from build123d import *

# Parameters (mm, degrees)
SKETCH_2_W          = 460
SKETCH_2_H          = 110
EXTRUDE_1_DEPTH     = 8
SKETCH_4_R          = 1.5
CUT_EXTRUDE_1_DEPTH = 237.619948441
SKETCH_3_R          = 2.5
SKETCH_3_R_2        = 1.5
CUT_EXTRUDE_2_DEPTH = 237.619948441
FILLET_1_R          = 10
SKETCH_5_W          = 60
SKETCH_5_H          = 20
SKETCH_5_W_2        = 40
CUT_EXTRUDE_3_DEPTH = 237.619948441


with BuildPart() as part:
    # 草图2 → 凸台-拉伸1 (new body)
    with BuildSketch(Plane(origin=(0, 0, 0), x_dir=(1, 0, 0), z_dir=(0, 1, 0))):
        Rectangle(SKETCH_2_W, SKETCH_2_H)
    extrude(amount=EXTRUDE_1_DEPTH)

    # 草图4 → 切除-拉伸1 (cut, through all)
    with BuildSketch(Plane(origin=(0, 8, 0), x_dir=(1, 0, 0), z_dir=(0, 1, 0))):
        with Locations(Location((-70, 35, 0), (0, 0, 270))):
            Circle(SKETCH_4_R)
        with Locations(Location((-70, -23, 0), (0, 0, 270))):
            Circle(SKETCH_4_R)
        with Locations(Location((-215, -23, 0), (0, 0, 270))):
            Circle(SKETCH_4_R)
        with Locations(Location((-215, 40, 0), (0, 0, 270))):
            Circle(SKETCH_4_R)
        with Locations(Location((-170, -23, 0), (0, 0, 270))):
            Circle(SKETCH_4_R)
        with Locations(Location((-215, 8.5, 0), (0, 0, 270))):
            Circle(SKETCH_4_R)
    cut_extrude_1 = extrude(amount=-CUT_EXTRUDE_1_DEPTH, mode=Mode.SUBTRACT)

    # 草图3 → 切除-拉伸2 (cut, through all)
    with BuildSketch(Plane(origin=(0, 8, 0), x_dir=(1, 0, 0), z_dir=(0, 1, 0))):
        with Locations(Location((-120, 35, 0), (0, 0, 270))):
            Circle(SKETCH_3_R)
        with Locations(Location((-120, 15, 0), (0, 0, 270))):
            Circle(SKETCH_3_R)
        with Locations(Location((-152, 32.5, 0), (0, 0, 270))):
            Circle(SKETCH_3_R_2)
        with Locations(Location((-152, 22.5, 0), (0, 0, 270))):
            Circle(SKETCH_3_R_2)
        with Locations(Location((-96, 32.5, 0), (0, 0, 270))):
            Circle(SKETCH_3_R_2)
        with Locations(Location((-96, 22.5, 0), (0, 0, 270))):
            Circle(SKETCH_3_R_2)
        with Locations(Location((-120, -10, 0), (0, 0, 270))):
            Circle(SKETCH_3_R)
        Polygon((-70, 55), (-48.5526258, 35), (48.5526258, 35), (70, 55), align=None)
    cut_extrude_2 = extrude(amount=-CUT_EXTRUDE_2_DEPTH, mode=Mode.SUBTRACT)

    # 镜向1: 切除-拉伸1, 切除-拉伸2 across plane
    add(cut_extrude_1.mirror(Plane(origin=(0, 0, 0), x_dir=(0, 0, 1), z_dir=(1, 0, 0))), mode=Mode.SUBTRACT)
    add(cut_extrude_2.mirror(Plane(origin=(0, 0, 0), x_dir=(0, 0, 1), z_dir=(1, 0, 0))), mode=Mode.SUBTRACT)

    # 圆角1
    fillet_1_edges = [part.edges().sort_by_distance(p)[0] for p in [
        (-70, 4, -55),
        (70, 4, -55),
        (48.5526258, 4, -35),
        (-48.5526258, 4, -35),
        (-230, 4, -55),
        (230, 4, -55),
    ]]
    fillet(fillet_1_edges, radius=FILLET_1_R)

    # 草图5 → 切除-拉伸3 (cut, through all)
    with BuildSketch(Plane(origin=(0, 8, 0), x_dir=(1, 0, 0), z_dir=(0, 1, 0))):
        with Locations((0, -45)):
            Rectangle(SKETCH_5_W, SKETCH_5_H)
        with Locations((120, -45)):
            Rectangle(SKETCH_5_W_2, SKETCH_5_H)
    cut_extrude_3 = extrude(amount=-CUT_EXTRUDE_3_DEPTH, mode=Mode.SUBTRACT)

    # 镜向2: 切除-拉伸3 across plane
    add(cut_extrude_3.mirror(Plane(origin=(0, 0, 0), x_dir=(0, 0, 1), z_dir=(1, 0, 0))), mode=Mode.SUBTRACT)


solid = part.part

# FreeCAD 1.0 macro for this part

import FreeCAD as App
import Part
import Sketcher

V = App.Vector
Q = App.Units.Quantity


def edges_at(feature, points):
    """Names of the edges that pass closest to the given points."""
    edges = feature.Shape.Edges
    near = lambda p: min(range(len(edges)), key=lambda i: edges[i].distToShape(Part.Vertex(*p))[0])
    return sorted({f"Edge{near(p) + 1}" for p in points})

doc = App.newDocument("Part")
body = doc.addObject("PartDesign::Body", "Body")

# Sketch on XZ plane
sketch1 = doc.addObject("Sketcher::SketchObject", "Sketch")
body.addObject(sketch1)
sketch1.AttachmentSupport = (doc.XZ_Plane, [""])
sketch1.MapMode = "FlatFace"
sketch1.addGeometry(Part.LineSegment(V(-230, -55, 0), V(-230, 55, 0)), False)
sketch1.addGeometry(Part.LineSegment(V(-230, 55, 0), V(230, 55, 0)), False)
sketch1.addGeometry(Part.LineSegment(V(230, 55, 0), V(230, -55, 0)), False)
sketch1.addGeometry(Part.LineSegment(V(230, -55, 0), V(-230, -55, 0)), False)
sketch1.addConstraint(Sketcher.Constraint("Coincident", 0, 2, 1, 1))
sketch1.addConstraint(Sketcher.Constraint("Coincident", 1, 2, 2, 1))
sketch1.addConstraint(Sketcher.Constraint("Coincident", 2, 2, 3, 1))
sketch1.addConstraint(Sketcher.Constraint("Coincident", 3, 2, 0, 1))
sketch1.addConstraint(Sketcher.Constraint("Vertical", 0))
sketch1.addConstraint(Sketcher.Constraint("Horizontal", 1))
sketch1.addConstraint(Sketcher.Constraint("Vertical", 2))
sketch1.addConstraint(Sketcher.Constraint("Horizontal", 3))
sketch1.addConstraint(Sketcher.Constraint("Symmetric", 0, 2, 2, 2, -1, 1))
sketch1.addConstraint(Sketcher.Constraint("DistanceX", 1, 1, 1, 2, Q("460 mm")))
sketch1.addConstraint(Sketcher.Constraint("DistanceY", 0, 1, 0, 2, Q("110 mm")))
pad1 = doc.addObject("PartDesign::Pad", "Pad")
body.addObject(pad1)
pad1.Profile = sketch1
pad1.Length = 8
pad1.Reversed = True

# Sketch on XZ plane
sketch2 = doc.addObject("Sketcher::SketchObject", "Sketch001")
body.addObject(sketch2)
sketch2.AttachmentSupport = (doc.XZ_Plane, [""])
sketch2.MapMode = "FlatFace"
sketch2.AttachmentOffset = App.Placement(V(0, 0, -8), App.Rotation())
sketch2.addGeometry(Part.Circle(V(-70, -35, 0), V(0, 0, 1), 1.5), False)
sketch2.addGeometry(Part.Circle(V(-70, 23, 0), V(0, 0, 1), 1.5), False)
sketch2.addGeometry(Part.Circle(V(-215, 23, 0), V(0, 0, 1), 1.5), False)
sketch2.addGeometry(Part.Circle(V(-215, -40, 0), V(0, 0, 1), 1.5), False)
sketch2.addGeometry(Part.Circle(V(-170, 23, 0), V(0, 0, 1), 1.5), False)
sketch2.addGeometry(Part.Circle(V(-215, -8.5, 0), V(0, 0, 1), 1.5), False)
sketch2.addConstraint(Sketcher.Constraint("Equal", 0, 1))
sketch2.addConstraint(Sketcher.Constraint("Equal", 1, 2))
sketch2.addConstraint(Sketcher.Constraint("Equal", 2, 3))
sketch2.addConstraint(Sketcher.Constraint("Equal", 3, 4))
sketch2.addConstraint(Sketcher.Constraint("Equal", 4, 5))
sketch2.addConstraint(Sketcher.Constraint("Horizontal", 1, 3, 2, 3))
sketch2.addConstraint(Sketcher.Constraint("Horizontal", 2, 3, 4, 3))
sketch2.addConstraint(Sketcher.Constraint("Vertical", 0, 3, 1, 3))
sketch2.addConstraint(Sketcher.Constraint("Vertical", 2, 3, 3, 3))
sketch2.addConstraint(Sketcher.Constraint("Vertical", 3, 3, 5, 3))
sketch2.addConstraint(Sketcher.Constraint("Diameter", 0, Q("3 mm")))
sketch2.addConstraint(Sketcher.Constraint("DistanceX", 0, 3, -1, 1, Q("70 mm")))
sketch2.addConstraint(Sketcher.Constraint("DistanceY", 0, 3, -1, 1, Q("35 mm")))
sketch2.addConstraint(Sketcher.Constraint("DistanceY", -1, 1, 1, 3, Q("23 mm")))
sketch2.addConstraint(Sketcher.Constraint("DistanceX", 2, 3, -1, 1, Q("215 mm")))
sketch2.addConstraint(Sketcher.Constraint("DistanceY", 3, 3, -1, 1, Q("40 mm")))
sketch2.addConstraint(Sketcher.Constraint("DistanceX", 4, 3, -1, 1, Q("170 mm")))
sketch2.addConstraint(Sketcher.Constraint("DistanceY", 5, 3, -1, 1, Q("8.5 mm")))
pocket1 = doc.addObject("PartDesign::Pocket", "Pocket")
body.addObject(pocket1)
pocket1.Profile = sketch2
pocket1.Type = "ThroughAll"
pocket1.Reversed = True

# Sketch on XZ plane
sketch3 = doc.addObject("Sketcher::SketchObject", "Sketch002")
body.addObject(sketch3)
sketch3.AttachmentSupport = (doc.XZ_Plane, [""])
sketch3.MapMode = "FlatFace"
sketch3.AttachmentOffset = App.Placement(V(0, 0, -8), App.Rotation())
sketch3.addGeometry(Part.Circle(V(-120, -35, 0), V(0, 0, 1), 2.5), False)
sketch3.addGeometry(Part.Circle(V(-120, -15, 0), V(0, 0, 1), 2.5), False)
sketch3.addGeometry(Part.Circle(V(-152, -32.5, 0), V(0, 0, 1), 1.5), False)
sketch3.addGeometry(Part.Circle(V(-152, -22.5, 0), V(0, 0, 1), 1.5), False)
sketch3.addGeometry(Part.Circle(V(-96, -32.5, 0), V(0, 0, 1), 1.5), False)
sketch3.addGeometry(Part.Circle(V(-96, -22.5, 0), V(0, 0, 1), 1.5), False)
sketch3.addGeometry(Part.Circle(V(-120, 10, 0), V(0, 0, 1), 2.5), False)
sketch3.addGeometry(Part.LineSegment(V(-70, -55, 0), V(-48.552626, -35, 0)), False)
sketch3.addGeometry(Part.LineSegment(V(-48.552626, -35, 0), V(48.552626, -35, 0)), False)
sketch3.addGeometry(Part.LineSegment(V(48.552626, -35, 0), V(70, -55, 0)), False)
sketch3.addGeometry(Part.LineSegment(V(70, -55, 0), V(-70, -55, 0)), False)
sketch3.addConstraint(Sketcher.Constraint("Coincident", 7, 2, 8, 1))
sketch3.addConstraint(Sketcher.Constraint("Coincident", 8, 2, 9, 1))
sketch3.addConstraint(Sketcher.Constraint("Coincident", 9, 2, 10, 1))
sketch3.addConstraint(Sketcher.Constraint("Coincident", 10, 2, 7, 1))
sketch3.addConstraint(Sketcher.Constraint("Horizontal", 8))
sketch3.addConstraint(Sketcher.Constraint("Horizontal", 10))
sketch3.addConstraint(Sketcher.Constraint("Equal", 0, 1))
sketch3.addConstraint(Sketcher.Constraint("Equal", 2, 3))
sketch3.addConstraint(Sketcher.Constraint("Equal", 3, 4))
sketch3.addConstraint(Sketcher.Constraint("Equal", 4, 5))
sketch3.addConstraint(Sketcher.Constraint("Equal", 1, 6))
sketch3.addConstraint(Sketcher.Constraint("Horizontal", 2, 3, 4, 3))
sketch3.addConstraint(Sketcher.Constraint("Horizontal", 3, 3, 5, 3))
sketch3.addConstraint(Sketcher.Constraint("Horizontal", 0, 3, 7, 2))
sketch3.addConstraint(Sketcher.Constraint("Vertical", 0, 3, 1, 3))
sketch3.addConstraint(Sketcher.Constraint("Vertical", 2, 3, 3, 3))
sketch3.addConstraint(Sketcher.Constraint("Vertical", 4, 3, 5, 3))
sketch3.addConstraint(Sketcher.Constraint("Vertical", 1, 3, 6, 3))
sketch3.addConstraint(Sketcher.Constraint("Equal", 7, 9))
sketch3.addConstraint(Sketcher.Constraint("Diameter", 0, Q("5 mm")))
sketch3.addConstraint(Sketcher.Constraint("Diameter", 2, Q("3 mm")))
sketch3.addConstraint(Sketcher.Constraint("DistanceX", 10, 2, 10, 1, Q("140 mm")))
sketch3.addConstraint(Sketcher.Constraint("Angle", 7, Q("43 deg")))
sketch3.addConstraint(Sketcher.Constraint("DistanceX", 0, 3, -1, 1, Q("120 mm")))
sketch3.addConstraint(Sketcher.Constraint("DistanceY", 0, 3, -1, 1, Q("35 mm")))
sketch3.addConstraint(Sketcher.Constraint("DistanceY", 1, 3, -1, 1, Q("15 mm")))
sketch3.addConstraint(Sketcher.Constraint("DistanceX", 2, 3, -1, 1, Q("152 mm")))
sketch3.addConstraint(Sketcher.Constraint("DistanceX", 4, 3, -1, 1, Q("96 mm")))
sketch3.addConstraint(Sketcher.Constraint("DistanceY", -1, 1, 6, 3, Q("10 mm")))
sketch3.addConstraint(Sketcher.Constraint("DistanceX", -1, 1, 9, 2, Q("70 mm")))
sketch3.addConstraint(Sketcher.Constraint("DistanceY", 9, 2, -1, 1, Q("55 mm")))
sketch3.addConstraint(Sketcher.Constraint("DistanceY", 2, 3, 3, 3, Q("10 mm")))
sketch3.addConstraint(Sketcher.Constraint("DistanceY", 2, 3, -1, 1, Q("32.5 mm")))
pocket2 = doc.addObject("PartDesign::Pocket", "Pocket001")
body.addObject(pocket2)
pocket2.Profile = sketch3
pocket2.Type = "ThroughAll"
pocket2.Reversed = True
doc.recompute()

mirrored = doc.addObject("PartDesign::Mirrored", "Mirrored")
body.addObject(mirrored)
mirrored.Originals = [pocket1, pocket2]
mirrored.MirrorPlane = (doc.YZ_Plane, [""])
body.Tip = mirrored
doc.recompute()

fillet = doc.addObject("PartDesign::Fillet", "Fillet")
body.addObject(fillet)
fillet.Base = (mirrored, edges_at(mirrored, [
    (-70, 4, -55),
    (70, 4, -55),
    (48.553, 4, -35),
    (-48.553, 4, -35),
    (-230, 4, -55),
    (230, 4, -55),
]))
fillet.Radius = 10

# Sketch on XZ plane
sketch4 = doc.addObject("Sketcher::SketchObject", "Sketch003")
body.addObject(sketch4)
sketch4.AttachmentSupport = (doc.XZ_Plane, [""])
sketch4.MapMode = "FlatFace"
sketch4.AttachmentOffset = App.Placement(V(0, 0, -8), App.Rotation())
sketch4.addGeometry(Part.LineSegment(V(-30, 35, 0), V(-30, 55, 0)), False)
sketch4.addGeometry(Part.LineSegment(V(-30, 55, 0), V(30, 55, 0)), False)
sketch4.addGeometry(Part.LineSegment(V(30, 55, 0), V(30, 35, 0)), False)
sketch4.addGeometry(Part.LineSegment(V(30, 35, 0), V(-30, 35, 0)), False)
sketch4.addGeometry(Part.LineSegment(V(100, 35, 0), V(100, 55, 0)), False)
sketch4.addGeometry(Part.LineSegment(V(100, 55, 0), V(140, 55, 0)), False)
sketch4.addGeometry(Part.LineSegment(V(140, 55, 0), V(140, 35, 0)), False)
sketch4.addGeometry(Part.LineSegment(V(140, 35, 0), V(100, 35, 0)), False)
sketch4.addConstraint(Sketcher.Constraint("Coincident", 0, 2, 1, 1))
sketch4.addConstraint(Sketcher.Constraint("Coincident", 1, 2, 2, 1))
sketch4.addConstraint(Sketcher.Constraint("Coincident", 2, 2, 3, 1))
sketch4.addConstraint(Sketcher.Constraint("Coincident", 3, 2, 0, 1))
sketch4.addConstraint(Sketcher.Constraint("Coincident", 4, 2, 5, 1))
sketch4.addConstraint(Sketcher.Constraint("Coincident", 5, 2, 6, 1))
sketch4.addConstraint(Sketcher.Constraint("Coincident", 6, 2, 7, 1))
sketch4.addConstraint(Sketcher.Constraint("Coincident", 7, 2, 4, 1))
sketch4.addConstraint(Sketcher.Constraint("Vertical", 0))
sketch4.addConstraint(Sketcher.Constraint("Horizontal", 1))
sketch4.addConstraint(Sketcher.Constraint("Vertical", 2))
sketch4.addConstraint(Sketcher.Constraint("Horizontal", 3))
sketch4.addConstraint(Sketcher.Constraint("Vertical", 4))
sketch4.addConstraint(Sketcher.Constraint("Horizontal", 5))
sketch4.addConstraint(Sketcher.Constraint("Vertical", 6))
sketch4.addConstraint(Sketcher.Constraint("Horizontal", 7))
sketch4.addConstraint(Sketcher.Constraint("Horizontal", 1, 2, 4, 2))
sketch4.addConstraint(Sketcher.Constraint("Horizontal", 3, 2, 6, 2))
sketch4.addConstraint(Sketcher.Constraint("DistanceX", 1, 1, 1, 2, Q("60 mm")))
sketch4.addConstraint(Sketcher.Constraint("DistanceX", 5, 1, 5, 2, Q("40 mm")))
sketch4.addConstraint(Sketcher.Constraint("DistanceY", 0, 1, 0, 2, Q("20 mm")))
sketch4.addConstraint(Sketcher.Constraint("DistanceX", 0, 2, -1, 1, Q("30 mm")))
sketch4.addConstraint(Sketcher.Constraint("DistanceY", -1, 1, 0, 2, Q("55 mm")))
sketch4.addConstraint(Sketcher.Constraint("DistanceX", -1, 1, 4, 2, Q("100 mm")))
pocket3 = doc.addObject("PartDesign::Pocket", "Pocket002")
body.addObject(pocket3)
pocket3.Profile = sketch4
pocket3.Type = "ThroughAll"
pocket3.Reversed = True
doc.recompute()

mirrored2 = doc.addObject("PartDesign::Mirrored", "Mirrored001")
body.addObject(mirrored2)
mirrored2.Originals = [pocket3]
mirrored2.MirrorPlane = (doc.YZ_Plane, [""])
body.Tip = mirrored2

doc.recompute()
